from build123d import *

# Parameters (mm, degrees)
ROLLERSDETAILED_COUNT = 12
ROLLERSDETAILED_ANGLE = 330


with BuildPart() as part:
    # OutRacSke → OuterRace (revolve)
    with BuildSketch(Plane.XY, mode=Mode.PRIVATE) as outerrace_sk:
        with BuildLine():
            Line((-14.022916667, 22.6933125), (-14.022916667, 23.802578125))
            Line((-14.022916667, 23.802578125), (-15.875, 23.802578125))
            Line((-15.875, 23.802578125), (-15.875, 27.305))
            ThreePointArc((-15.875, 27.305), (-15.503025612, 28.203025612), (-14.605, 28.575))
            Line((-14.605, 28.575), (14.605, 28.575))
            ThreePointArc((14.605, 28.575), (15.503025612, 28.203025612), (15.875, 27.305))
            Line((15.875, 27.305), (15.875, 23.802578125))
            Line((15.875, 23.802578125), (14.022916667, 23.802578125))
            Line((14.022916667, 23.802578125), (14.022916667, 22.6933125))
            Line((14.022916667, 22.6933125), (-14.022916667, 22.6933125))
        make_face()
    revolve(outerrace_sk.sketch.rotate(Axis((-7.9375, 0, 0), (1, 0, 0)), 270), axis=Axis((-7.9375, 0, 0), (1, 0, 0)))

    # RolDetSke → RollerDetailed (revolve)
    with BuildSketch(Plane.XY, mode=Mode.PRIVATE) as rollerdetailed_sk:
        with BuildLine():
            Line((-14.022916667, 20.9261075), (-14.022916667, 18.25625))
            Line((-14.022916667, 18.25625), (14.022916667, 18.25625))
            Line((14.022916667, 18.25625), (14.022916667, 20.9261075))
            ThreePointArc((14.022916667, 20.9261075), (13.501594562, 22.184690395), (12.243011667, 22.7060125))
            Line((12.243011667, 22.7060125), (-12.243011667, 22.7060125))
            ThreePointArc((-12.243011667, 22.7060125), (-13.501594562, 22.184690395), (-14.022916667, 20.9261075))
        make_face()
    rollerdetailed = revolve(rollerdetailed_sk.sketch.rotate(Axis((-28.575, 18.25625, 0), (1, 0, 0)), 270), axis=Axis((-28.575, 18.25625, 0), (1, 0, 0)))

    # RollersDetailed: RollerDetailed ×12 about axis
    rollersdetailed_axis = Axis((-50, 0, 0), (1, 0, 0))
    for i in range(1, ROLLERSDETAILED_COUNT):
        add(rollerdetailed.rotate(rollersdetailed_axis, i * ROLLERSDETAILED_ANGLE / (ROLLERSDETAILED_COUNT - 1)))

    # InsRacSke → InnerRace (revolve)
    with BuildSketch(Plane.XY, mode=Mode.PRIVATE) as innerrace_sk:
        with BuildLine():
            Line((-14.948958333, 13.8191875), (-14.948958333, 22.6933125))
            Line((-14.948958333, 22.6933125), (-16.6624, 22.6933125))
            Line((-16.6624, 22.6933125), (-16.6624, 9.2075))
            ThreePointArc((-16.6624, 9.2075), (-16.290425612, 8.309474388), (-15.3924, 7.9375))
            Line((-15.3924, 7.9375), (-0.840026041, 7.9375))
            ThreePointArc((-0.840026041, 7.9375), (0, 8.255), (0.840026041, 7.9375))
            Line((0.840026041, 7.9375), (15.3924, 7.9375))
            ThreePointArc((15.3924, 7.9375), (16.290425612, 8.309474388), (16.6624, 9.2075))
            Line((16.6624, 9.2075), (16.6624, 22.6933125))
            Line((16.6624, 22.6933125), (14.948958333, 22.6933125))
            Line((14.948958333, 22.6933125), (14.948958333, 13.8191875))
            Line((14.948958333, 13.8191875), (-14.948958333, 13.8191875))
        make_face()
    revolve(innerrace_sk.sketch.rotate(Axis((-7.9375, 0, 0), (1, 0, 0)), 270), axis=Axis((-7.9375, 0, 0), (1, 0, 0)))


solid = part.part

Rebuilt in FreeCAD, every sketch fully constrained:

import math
import FreeCAD as App
import Part
import Sketcher
from FreeCAD import Vector
Q = App.Units.Quantity

doc = App.newDocument("Part")
params = doc.addObject("Spreadsheet::Sheet", "Params")
for row, (alias, value) in enumerate([
    ("sketch1_radius", "0.05 in"),
    ("sketch1_width", "1.15 in"),
    ("revolution_angle", "360 deg"),
    ("revolution2_angle", "360 deg"),
    ("sketch3_radius", "0.05 in"),
    ("revolution3_angle", "360 deg"),
], start=1):
    params.set(f"A{row}", alias)
    params.set(f"B{row}", "=" + value)
    params.setAlias(f"B{row}", alias)

body = doc.addObject("PartDesign::Body", "Body")

sketch1 = body.newObject("Sketcher::SketchObject", "Sketch")
sketch1.AttachmentSupport = (doc.getObject("XY_Plane"), [""])
sketch1.MapMode = "FlatFace"
sketch1.addGeometry([
    Part.LineSegment(Vector(-14, 23.8, 0), Vector(-14, 22.7, 0)),
    Part.LineSegment(Vector(-14, 22.7, 0), Vector(14, 22.7, 0)),
    Part.LineSegment(Vector(14, 22.7, 0), Vector(14, 23.8, 0)),
    Part.LineSegment(Vector(14, 23.8, 0), Vector(15.9, 23.8, 0)),
    Part.LineSegment(Vector(15.9, 23.8, 0), Vector(15.9, 27.3, 0)),
    Part.ArcOfCircle(Part.Circle(Vector(14.6, 27.3, 0), Vector(0, 0, 1), 1.3), math.radians(0), math.radians(90)),
    Part.LineSegment(Vector(14.6, 28.6, 0), Vector(-14.6, 28.6, 0)),
    Part.ArcOfCircle(Part.Circle(Vector(-14.6, 27.3, 0), Vector(0, 0, 1), 1.3), math.radians(90), math.radians(180)),
    Part.LineSegment(Vector(-15.9, 27.3, 0), Vector(-15.9, 23.8, 0)),
    Part.LineSegment(Vector(-15.9, 23.8, 0), Vector(-14, 23.8, 0)),
], False)
sketch1.addConstraint([
    Sketcher.Constraint("Coincident", 0, 2, 1, 1),
    Sketcher.Constraint("Coincident", 1, 2, 2, 1),
    Sketcher.Constraint("Coincident", 2, 2, 3, 1),
    Sketcher.Constraint("Coincident", 3, 2, 4, 1),
    Sketcher.Constraint("Tangent", 4, 2, 5, 1),
    Sketcher.Constraint("Tangent", 5, 2, 6, 1),
    Sketcher.Constraint("Tangent", 6, 2, 7, 1),
    Sketcher.Constraint("Tangent", 7, 2, 8, 1),
    Sketcher.Constraint("Coincident", 8, 2, 9, 1),
    Sketcher.Constraint("Coincident", 9, 2, 0, 1),
    Sketcher.Constraint("Vertical", 0),
    Sketcher.Constraint("Horizontal", 1),
    Sketcher.Constraint("Vertical", 2),
    Sketcher.Constraint("Horizontal", 3),
    Sketcher.Constraint("Vertical", 4),
    Sketcher.Constraint("Horizontal", 6),
    Sketcher.Constraint("Vertical", 8),
    Sketcher.Constraint("Horizontal", 9),
    Sketcher.Constraint("Equal", 5, 7),
    Sketcher.Constraint("Symmetric", 3, 2, 8, 2, -2),
    Sketcher.Constraint("Equal", 3, 9),
    Sketcher.Constraint("Radius", 5, Q("0.05 in")),
    Sketcher.Constraint("DistanceX", 6, 2, 6, 1, Q("1.15 in")),
    Sketcher.Constraint("DistanceY", -1, 1, 5, 3, Q("1.075 in")),
    Sketcher.Constraint("DistanceY", 4, 1, 4, 2, Q("3.502422 mm")),
    Sketcher.Constraint("DistanceX", 1, 1, 1, 2, Q("28.045833 mm")),
    Sketcher.Constraint("DistanceY", 0, 2, 0, 1, Q("1.109266 mm")),
])
sketch1.setExpression("Constraints[21]", "Params.sketch1_radius")
sketch1.setExpression("Constraints[22]", "Params.sketch1_width")
revolution = body.newObject("PartDesign::Revolution", "Revolution")
revolution.Profile = sketch1
revolution.ReferenceAxis = (sketch1, ["H_Axis"])
revolution.setExpression("Angle", "Params.revolution_angle")

sketch2 = body.newObject("Sketcher::SketchObject", "Sketch001")
sketch2.AttachmentSupport = (doc.getObject("XY_Plane"), [""])
sketch2.MapMode = "FlatFace"
sketch2.addGeometry([
    Part.LineSegment(Vector(-14, 20.9, 0), Vector(-14, 18.3, 0)),
    Part.LineSegment(Vector(-14, 18.3, 0), Vector(14, 18.3, 0)),
    Part.LineSegment(Vector(14, 18.3, 0), Vector(14, 20.9, 0)),
    Part.ArcOfCircle(Part.Circle(Vector(12.2, 20.9, 0), Vector(0, 0, 1), 1.8), math.radians(0), math.radians(90)),
    Part.LineSegment(Vector(12.2, 22.7, 0), Vector(-12.2, 22.7, 0)),
    Part.ArcOfCircle(Part.Circle(Vector(-12.2, 20.9, 0), Vector(0, 0, 1), 1.8), math.radians(90), math.radians(180)),
], False)
sketch2.addGeometry(Part.LineSegment(Vector(-14, 18.3, 0), Vector(14, 18.3, 0)), True)
sketch2.addConstraint([
    Sketcher.Constraint("Coincident", 0, 2, 1, 1),
    Sketcher.Constraint("Coincident", 1, 2, 2, 1),
    Sketcher.Constraint("Tangent", 2, 2, 3, 1),
    Sketcher.Constraint("Tangent", 3, 2, 4, 1),
    Sketcher.Constraint("Tangent", 4, 2, 5, 1),
    Sketcher.Constraint("Tangent", 5, 2, 0, 1),
    Sketcher.Constraint("Vertical", 0),
    Sketcher.Constraint("Horizontal", 1),
    Sketcher.Constraint("Vertical", 2),
    Sketcher.Constraint("Horizontal", 4),
    Sketcher.Constraint("Horizontal", 6),
    Sketcher.Constraint("Coincident", 6, 1, 0, 2),
    Sketcher.Constraint("Equal", 3, 5),
    Sketcher.Constraint("Vertical", 2, 2, 6, 2),
    Sketcher.Constraint("DistanceY", -1, 1, 0, 2, Q("0.71875 in")),
    Sketcher.Constraint("Radius", 3, Q("1.779905 mm")),
    Sketcher.Constraint("DistanceX", 1, 1, 1, 2, Q("28.045833 mm")),
    Sketcher.Constraint("DistanceY", 0, 2, 0, 1, Q("2.669857 mm")),
    Sketcher.Constraint("DistanceX", -1, 1, 3, 3, Q("12.243012 mm")),
])
revolution2 = body.newObject("PartDesign::Revolution", "Revolution001")
revolution2.Profile = sketch2
revolution2.ReferenceAxis = (sketch2, ["Axis0"])
revolution2.setExpression("Angle", "Params.revolution2_angle")
doc.recompute()

polarpattern = body.newObject("PartDesign::PolarPattern", "PolarPattern")
polarpattern.Originals = [revolution2]
polarpattern.Axis = (doc.getObject("X_Axis"), [""])
polarpattern.Angle = 360
polarpattern.Occurrences = 12
body.Tip = polarpattern

sketch3 = body.newObject("Sketcher::SketchObject", "Sketch002")
sketch3.AttachmentSupport = (doc.getObject("XY_Plane"), [""])
sketch3.MapMode = "FlatFace"
sketch3.addGeometry([
    Part.LineSegment(Vector(-14.9, 13.8, 0), Vector(-14.9, 22.7, 0)),
    Part.LineSegment(Vector(-14.9, 22.7, 0), Vector(-16.7, 22.7, 0)),
    Part.LineSegment(Vector(-16.7, 22.7, 0), Vector(-16.7, 9.2, 0)),
    Part.ArcOfCircle(Part.Circle(Vector(-15.4, 9.2, 0), Vector(0, 0, 1), 1.3), math.radians(180), math.radians(270)),
    Part.LineSegment(Vector(-15.4, 7.9, 0), Vector(-0.8, 7.9, 0)),
    Part.ArcOfCircle(Part.Circle(Vector(0, 7, 0), Vector(0, 0, 1), 1.3), math.radians(49), math.radians(131)),
    Part.LineSegment(Vector(0.8, 7.9, 0), Vector(15.4, 7.9, 0)),
    Part.ArcOfCircle(Part.Circle(Vector(15.4, 9.2, 0), Vector(0, 0, 1), 1.3), math.radians(-90), math.radians(0)),
    Part.LineSegment(Vector(16.7, 9.2, 0), Vector(16.7, 22.7, 0)),
    Part.LineSegment(Vector(16.7, 22.7, 0), Vector(14.9, 22.7, 0)),
    Part.LineSegment(Vector(14.9, 22.7, 0), Vector(14.9, 13.8, 0)),
    Part.LineSegment(Vector(14.9, 13.8, 0), Vector(-14.9, 13.8, 0)),
], False)
sketch3.addConstraint([
    Sketcher.Constraint("Coincident", 0, 2, 1, 1),
    Sketcher.Constraint("Coincident", 1, 2, 2, 1),
    Sketcher.Constraint("Tangent", 2, 2, 3, 1),
    Sketcher.Constraint("Tangent", 3, 2, 4, 1),
    Sketcher.Constraint("Coincident", 4, 2, 5, 2),
    Sketcher.Constraint("Coincident", 5, 1, 6, 1),
    Sketcher.Constraint("Tangent", 6, 2, 7, 1),
    Sketcher.Constraint("Tangent", 7, 2, 8, 1),
    Sketcher.Constraint("Coincident", 8, 2, 9, 1),
    Sketcher.Constraint("Coincident", 9, 2, 10, 1),
    Sketcher.Constraint("Coincident", 10, 2, 11, 1),
    Sketcher.Constraint("Coincident", 11, 2, 0, 1),
    Sketcher.Constraint("Vertical", 0),
    Sketcher.Constraint("Horizontal", 1),
    Sketcher.Constraint("Vertical", 2),
    Sketcher.Constraint("Horizontal", 4),
    Sketcher.Constraint("Horizontal", 6),
    Sketcher.Constraint("Vertical", 8),
    Sketcher.Constraint("Horizontal", 9),
    Sketcher.Constraint("Vertical", 10),
    Sketcher.Constraint("Horizontal", 11),
    Sketcher.Constraint("Equal", 3, 5),
    Sketcher.Constraint("Equal", 5, 7),
    Sketcher.Constraint("Symmetric", 3, 3, 7, 3, -2),
    Sketcher.Constraint("Symmetric", 0, 2, 9, 2, -2),
    Sketcher.Constraint("PointOnObject", 5, 3, -2),
    Sketcher.Constraint("Radius", 3, Q("0.05 in")),
    Sketcher.Constraint("DistanceX", 3, 3, -1, 1, Q("0.606 in")),
    Sketcher.Constraint("DistanceY", -1, 1, 5, 3, Q("0.275 in")),
    Sketcher.Constraint("DistanceY", -1, 1, 3, 2, Q("0.3125 in")),
    Sketcher.Constraint("DistanceX", 1, 2, 1, 1, Q("1.713442 mm")),
    Sketcher.Constraint("DistanceY", 0, 1, 0, 2, Q("8.874125 mm")),
    Sketcher.Constraint("DistanceY", 2, 2, 2, 1, Q("13.485813 mm")),
])
sketch3.setExpression("Constraints[26]", "Params.sketch3_radius")
revolution3 = body.newObject("PartDesign::Revolution", "Revolution002")
revolution3.Profile = sketch3
revolution3.ReferenceAxis = (sketch3, ["H_Axis"])
revolution3.setExpression("Angle", "Params.revolution3_angle")

doc.recompute()
